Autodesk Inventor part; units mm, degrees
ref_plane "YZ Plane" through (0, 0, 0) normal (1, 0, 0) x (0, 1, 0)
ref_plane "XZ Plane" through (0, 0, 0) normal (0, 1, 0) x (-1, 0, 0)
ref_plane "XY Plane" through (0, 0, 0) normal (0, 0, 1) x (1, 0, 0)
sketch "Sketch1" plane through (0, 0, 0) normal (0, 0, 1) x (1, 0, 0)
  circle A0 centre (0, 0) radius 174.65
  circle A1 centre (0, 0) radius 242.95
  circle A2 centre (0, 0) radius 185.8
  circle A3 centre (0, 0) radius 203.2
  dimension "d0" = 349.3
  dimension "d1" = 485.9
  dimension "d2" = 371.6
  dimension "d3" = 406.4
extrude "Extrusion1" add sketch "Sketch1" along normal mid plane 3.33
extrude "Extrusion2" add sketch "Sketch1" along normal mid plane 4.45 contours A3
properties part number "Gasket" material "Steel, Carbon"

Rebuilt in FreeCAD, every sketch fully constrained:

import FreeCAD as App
import Part
import Sketcher
from FreeCAD import Vector
Q = App.Units.Quantity

doc = App.newDocument("Part")
params = doc.addObject("Spreadsheet::Sheet", "Params")
for row, (alias, value) in enumerate([
    ("sketch1_diameter", "485.9 mm"),
    ("sketch1_diameter2", "406.4 mm"),
    ("sketch1_diameter3", "371.6 mm"),
    ("sketch1_diameter4", "349.3 mm"),
    ("pad1_length", "3.33 mm"),
    ("sketch2_diameter", "406.4 mm"),
    ("sketch2_diameter2", "371.6 mm"),
    ("pad2_length", "4.45 mm"),
], start=1):
    params.set(f"A{row}", alias)
    params.set(f"B{row}", "=" + value)
    params.setAlias(f"B{row}", alias)

body = doc.addObject("PartDesign::Body", "Body")
body.AllowCompound = True

# Sketch on XY plane
sketch1 = body.newObject("Sketcher::SketchObject", "Sketch")
sketch1.AttachmentSupport = (doc.getObject("XY_Plane"), [""])
sketch1.MapMode = "FlatFace"
sketch1.addGeometry([
    Part.Circle(Vector(0, 0, 0), Vector(0, 0, 1), 242.95),
    Part.Circle(Vector(0, 0, 0), Vector(0, 0, 1), 203.2),
    Part.Circle(Vector(0, 0, 0), Vector(0, 0, 1), 185.8),
    Part.Circle(Vector(0, 0, 0), Vector(0, 0, 1), 174.65),
], False)
sketch1.addConstraint([
    Sketcher.Constraint("Coincident", 0, 3, -1, 1),
    Sketcher.Constraint("Coincident", 1, 3, -1, 1),
    Sketcher.Constraint("Coincident", 2, 3, -1, 1),
    Sketcher.Constraint("Coincident", 3, 3, -1, 1),
    Sketcher.Constraint("Diameter", 0, Q("485.9 mm")),
    Sketcher.Constraint("Diameter", 1, Q("406.4 mm")),
    Sketcher.Constraint("Diameter", 2, Q("371.6 mm")),
    Sketcher.Constraint("Diameter", 3, Q("349.3 mm")),
])
sketch1.setExpression("Constraints[4]", "Params.sketch1_diameter")
sketch1.setExpression("Constraints[5]", "Params.sketch1_diameter2")
sketch1.setExpression("Constraints[6]", "Params.sketch1_diameter3")
sketch1.setExpression("Constraints[7]", "Params.sketch1_diameter4")
pad1 = body.newObject("PartDesign::Pad", "Pad")
pad1.Profile = sketch1
pad1.setExpression("Length", "Params.pad1_length")
pad1.Midplane = True

# Sketch on XY plane
sketch2 = body.newObject("Sketcher::SketchObject", "Sketch001")
sketch2.AttachmentSupport = (doc.getObject("XY_Plane"), [""])
sketch2.MapMode = "FlatFace"
sketch2.addGeometry([
    Part.Circle(Vector(0, 0, 0), Vector(0, 0, 1), 203.2),
    Part.Circle(Vector(0, 0, 0), Vector(0, 0, 1), 185.8),
], False)
sketch2.addConstraint([
    Sketcher.Constraint("Coincident", 0, 3, -1, 1),
    Sketcher.Constraint("Coincident", 1, 3, -1, 1),
    Sketcher.Constraint("Diameter", 0, Q("406.4 mm")),
    Sketcher.Constraint("Diameter", 1, Q("371.6 mm")),
])
sketch2.setExpression("Constraints[2]", "Params.sketch2_diameter")
sketch2.setExpression("Constraints[3]", "Params.sketch2_diameter2")
pad2 = body.newObject("PartDesign::Pad", "Pad001")
pad2.Profile = sketch2
pad2.setExpression("Length", "Params.pad2_length")
pad2.Midplane = True

doc.recompute()
